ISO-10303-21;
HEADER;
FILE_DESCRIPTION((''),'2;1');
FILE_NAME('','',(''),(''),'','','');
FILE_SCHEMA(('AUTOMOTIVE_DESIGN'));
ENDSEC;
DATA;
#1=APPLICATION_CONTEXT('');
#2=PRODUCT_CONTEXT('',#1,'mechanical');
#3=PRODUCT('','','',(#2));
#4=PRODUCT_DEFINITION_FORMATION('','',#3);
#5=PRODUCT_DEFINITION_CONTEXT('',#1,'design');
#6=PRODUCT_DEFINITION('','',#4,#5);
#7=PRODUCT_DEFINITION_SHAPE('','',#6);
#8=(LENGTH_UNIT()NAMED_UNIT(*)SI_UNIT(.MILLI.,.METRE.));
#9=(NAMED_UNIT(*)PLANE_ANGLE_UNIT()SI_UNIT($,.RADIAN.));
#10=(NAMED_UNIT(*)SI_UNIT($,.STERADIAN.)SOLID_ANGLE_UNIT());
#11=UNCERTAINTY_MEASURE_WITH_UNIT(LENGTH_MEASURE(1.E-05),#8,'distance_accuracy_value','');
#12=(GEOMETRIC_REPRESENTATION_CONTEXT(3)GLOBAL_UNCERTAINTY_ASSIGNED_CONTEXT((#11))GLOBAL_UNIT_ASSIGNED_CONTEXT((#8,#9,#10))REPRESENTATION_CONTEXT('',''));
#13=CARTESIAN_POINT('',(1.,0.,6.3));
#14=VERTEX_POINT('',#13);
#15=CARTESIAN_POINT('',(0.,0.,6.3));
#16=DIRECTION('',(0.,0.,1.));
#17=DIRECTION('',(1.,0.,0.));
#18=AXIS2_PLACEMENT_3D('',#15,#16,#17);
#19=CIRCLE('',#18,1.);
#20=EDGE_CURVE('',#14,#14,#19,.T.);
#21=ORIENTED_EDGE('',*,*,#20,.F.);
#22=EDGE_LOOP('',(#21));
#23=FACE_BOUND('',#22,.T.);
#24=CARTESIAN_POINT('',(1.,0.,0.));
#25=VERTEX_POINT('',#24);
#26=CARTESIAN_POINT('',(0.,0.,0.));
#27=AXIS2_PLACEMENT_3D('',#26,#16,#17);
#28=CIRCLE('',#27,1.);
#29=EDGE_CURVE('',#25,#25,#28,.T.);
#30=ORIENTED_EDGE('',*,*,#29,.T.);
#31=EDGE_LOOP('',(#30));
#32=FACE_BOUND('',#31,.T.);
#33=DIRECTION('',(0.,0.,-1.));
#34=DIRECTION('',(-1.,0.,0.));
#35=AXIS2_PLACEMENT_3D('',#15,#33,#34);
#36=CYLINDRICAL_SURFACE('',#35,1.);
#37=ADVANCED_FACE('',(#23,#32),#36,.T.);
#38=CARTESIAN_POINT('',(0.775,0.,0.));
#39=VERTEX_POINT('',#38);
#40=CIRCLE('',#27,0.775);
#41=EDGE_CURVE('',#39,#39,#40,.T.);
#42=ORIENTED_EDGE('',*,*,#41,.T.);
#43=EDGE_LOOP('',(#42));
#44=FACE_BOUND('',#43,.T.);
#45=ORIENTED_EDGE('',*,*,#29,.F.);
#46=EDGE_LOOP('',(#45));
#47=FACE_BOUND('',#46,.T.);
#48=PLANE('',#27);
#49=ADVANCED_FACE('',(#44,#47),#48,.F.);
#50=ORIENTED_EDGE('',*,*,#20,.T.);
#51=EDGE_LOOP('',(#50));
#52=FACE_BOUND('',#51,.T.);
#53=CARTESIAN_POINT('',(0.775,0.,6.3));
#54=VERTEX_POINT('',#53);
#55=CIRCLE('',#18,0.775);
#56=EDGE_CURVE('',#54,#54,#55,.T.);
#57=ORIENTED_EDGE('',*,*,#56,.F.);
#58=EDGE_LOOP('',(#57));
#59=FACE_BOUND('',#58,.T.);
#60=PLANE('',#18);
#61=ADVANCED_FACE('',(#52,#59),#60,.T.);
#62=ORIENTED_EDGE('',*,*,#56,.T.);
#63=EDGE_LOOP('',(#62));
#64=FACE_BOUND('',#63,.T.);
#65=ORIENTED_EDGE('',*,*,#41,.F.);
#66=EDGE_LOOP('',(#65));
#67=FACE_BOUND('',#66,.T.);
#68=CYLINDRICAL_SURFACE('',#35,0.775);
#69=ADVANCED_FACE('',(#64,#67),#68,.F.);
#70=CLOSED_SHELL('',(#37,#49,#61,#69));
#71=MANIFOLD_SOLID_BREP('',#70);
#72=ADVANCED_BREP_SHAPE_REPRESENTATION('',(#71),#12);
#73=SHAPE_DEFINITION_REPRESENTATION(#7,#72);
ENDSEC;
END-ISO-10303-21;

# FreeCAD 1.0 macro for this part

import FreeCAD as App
import Part
import Sketcher
Q = App.Units.Quantity

doc = App.newDocument("Part")
params = doc.addObject("Spreadsheet::Sheet", "Params")
for row, (alias, value) in enumerate([
    ("sketch1_diameter", "2 mm"),
    ("sketch1_diameter2", "1.55 mm"),
    ("pad1_length", "6.3 mm"),
], start=1):
    params.set(f"A{row}", alias)
    params.set(f"B{row}", "=" + value)
    params.setAlias(f"B{row}", alias)

body = doc.addObject("PartDesign::Body", "Body")

# Sketch on XY plane
sketch1 = doc.addObject("Sketcher::SketchObject", "Sketch")
body.addObject(sketch1)
sketch1.AttachmentSupport = (doc.XY_Plane, [""])
sketch1.MapMode = "FlatFace"
sketch1.addGeometry([
    Part.Circle(App.Vector(0, 0, 0), App.Vector(0, 0, 1), 1),
    Part.Circle(App.Vector(0, 0, 0), App.Vector(0, 0, 1), 0.8),
], False)
sketch1.addConstraint([
    Sketcher.Constraint("Coincident", 0, 3, -1, 1),
    Sketcher.Constraint("Coincident", 1, 3, -1, 1),
    Sketcher.Constraint("Diameter", 0, Q("2 mm")),
    Sketcher.Constraint("Diameter", 1, Q("1.55 mm")),
])
sketch1.setExpression("Constraints[2]", "Params.sketch1_diameter")
sketch1.setExpression("Constraints[3]", "Params.sketch1_diameter2")
pad1 = doc.addObject("PartDesign::Pad", "Pad")
body.addObject(pad1)
pad1.Profile = sketch1
pad1.setExpression("Length", "Params.pad1_length")

doc.recompute()
